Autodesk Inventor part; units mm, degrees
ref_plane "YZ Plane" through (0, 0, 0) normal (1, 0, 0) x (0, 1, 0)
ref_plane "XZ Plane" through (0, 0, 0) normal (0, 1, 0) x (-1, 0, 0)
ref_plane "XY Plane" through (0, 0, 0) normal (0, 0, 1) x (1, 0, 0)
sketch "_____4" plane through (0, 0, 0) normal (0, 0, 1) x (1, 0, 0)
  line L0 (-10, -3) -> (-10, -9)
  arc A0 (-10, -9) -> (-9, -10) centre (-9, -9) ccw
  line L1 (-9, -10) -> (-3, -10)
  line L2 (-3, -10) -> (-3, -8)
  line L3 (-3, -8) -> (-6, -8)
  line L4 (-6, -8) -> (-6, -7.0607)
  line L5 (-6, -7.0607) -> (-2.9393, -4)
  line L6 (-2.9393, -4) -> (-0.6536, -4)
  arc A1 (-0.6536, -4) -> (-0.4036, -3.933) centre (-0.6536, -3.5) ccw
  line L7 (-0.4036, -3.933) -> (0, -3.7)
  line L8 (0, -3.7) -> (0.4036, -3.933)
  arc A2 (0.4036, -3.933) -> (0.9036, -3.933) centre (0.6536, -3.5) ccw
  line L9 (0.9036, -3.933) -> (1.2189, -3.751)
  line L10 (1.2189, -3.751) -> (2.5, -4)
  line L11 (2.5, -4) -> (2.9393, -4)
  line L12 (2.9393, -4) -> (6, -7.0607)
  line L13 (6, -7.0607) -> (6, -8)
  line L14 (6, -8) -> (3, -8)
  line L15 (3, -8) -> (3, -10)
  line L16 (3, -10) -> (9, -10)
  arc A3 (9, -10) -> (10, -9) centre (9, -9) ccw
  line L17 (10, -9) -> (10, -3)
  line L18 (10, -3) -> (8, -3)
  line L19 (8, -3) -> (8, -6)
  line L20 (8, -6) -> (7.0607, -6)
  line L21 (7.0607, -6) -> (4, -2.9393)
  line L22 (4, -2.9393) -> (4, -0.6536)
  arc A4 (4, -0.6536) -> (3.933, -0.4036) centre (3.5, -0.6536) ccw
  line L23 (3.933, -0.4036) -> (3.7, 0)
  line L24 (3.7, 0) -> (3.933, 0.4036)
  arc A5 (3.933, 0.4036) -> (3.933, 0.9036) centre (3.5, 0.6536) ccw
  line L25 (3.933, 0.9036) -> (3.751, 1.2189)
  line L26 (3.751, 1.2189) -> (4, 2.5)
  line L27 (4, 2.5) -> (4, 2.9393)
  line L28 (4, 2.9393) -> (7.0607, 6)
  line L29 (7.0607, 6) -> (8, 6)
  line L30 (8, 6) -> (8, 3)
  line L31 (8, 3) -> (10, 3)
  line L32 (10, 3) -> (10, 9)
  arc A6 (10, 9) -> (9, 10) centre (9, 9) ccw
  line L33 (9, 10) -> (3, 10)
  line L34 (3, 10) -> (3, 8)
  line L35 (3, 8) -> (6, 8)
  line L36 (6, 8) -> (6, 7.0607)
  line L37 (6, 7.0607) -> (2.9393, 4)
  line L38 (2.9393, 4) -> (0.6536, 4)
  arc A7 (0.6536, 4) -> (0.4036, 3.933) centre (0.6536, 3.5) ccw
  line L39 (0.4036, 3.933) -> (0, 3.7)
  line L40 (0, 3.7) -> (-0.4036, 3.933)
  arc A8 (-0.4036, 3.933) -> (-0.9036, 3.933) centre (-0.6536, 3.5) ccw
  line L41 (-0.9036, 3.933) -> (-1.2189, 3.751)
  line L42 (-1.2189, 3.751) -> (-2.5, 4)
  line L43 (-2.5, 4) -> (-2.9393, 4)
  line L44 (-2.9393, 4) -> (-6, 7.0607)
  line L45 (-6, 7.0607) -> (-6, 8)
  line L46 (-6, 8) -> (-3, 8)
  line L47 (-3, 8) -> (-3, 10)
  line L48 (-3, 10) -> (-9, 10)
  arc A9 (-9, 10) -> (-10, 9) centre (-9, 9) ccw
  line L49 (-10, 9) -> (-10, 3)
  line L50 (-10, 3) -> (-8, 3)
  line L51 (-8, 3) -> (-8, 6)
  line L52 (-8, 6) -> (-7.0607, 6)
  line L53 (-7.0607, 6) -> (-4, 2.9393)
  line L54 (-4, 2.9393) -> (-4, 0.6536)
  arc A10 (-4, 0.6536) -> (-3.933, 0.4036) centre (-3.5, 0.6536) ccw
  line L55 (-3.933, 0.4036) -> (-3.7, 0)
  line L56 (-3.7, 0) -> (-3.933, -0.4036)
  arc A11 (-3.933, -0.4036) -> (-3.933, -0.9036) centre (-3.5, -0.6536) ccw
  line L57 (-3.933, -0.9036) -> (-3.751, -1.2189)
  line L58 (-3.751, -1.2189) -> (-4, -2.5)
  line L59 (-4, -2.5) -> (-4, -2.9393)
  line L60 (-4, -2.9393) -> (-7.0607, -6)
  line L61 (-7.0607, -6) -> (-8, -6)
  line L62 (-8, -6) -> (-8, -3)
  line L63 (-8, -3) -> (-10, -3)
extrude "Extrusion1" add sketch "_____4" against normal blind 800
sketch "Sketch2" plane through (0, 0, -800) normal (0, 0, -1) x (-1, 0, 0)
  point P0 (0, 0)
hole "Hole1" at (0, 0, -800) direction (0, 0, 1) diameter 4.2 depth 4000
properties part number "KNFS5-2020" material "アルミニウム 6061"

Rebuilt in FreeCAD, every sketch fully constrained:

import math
import FreeCAD as App
import Part
import Sketcher
Q = App.Units.Quantity

doc = App.newDocument("Part")
body = doc.addObject("PartDesign::Body", "Body")

# Sketch on XY plane
sketch1 = body.newObject("Sketcher::SketchObject", "Sketch")
sketch1.AttachmentSupport = (doc.getObject("XY_Plane"), [""])
sketch1.MapMode = "FlatFace"
sketch1.addGeometry([
    Part.LineSegment(App.Vector(-8, -3, 0), App.Vector(-10, -3, 0)),  # 0
    Part.LineSegment(App.Vector(-10, -3, 0), App.Vector(-10, -9, 0)),  # 1
    Part.ArcOfCircle(Part.Circle(App.Vector(-9, -9, 0), App.Vector(0, 0, 1), 1), math.radians(180), math.radians(270)),  # 2
    Part.LineSegment(App.Vector(-9, -10, 0), App.Vector(-3, -10, 0)),  # 3
    Part.LineSegment(App.Vector(-3, -10, 0), App.Vector(-3, -8, 0)),  # 4
    Part.LineSegment(App.Vector(-3, -8, 0), App.Vector(-6, -8, 0)),  # 5
    Part.LineSegment(App.Vector(-6, -8, 0), App.Vector(-6, -7.06, 0)),  # 6
    Part.LineSegment(App.Vector(-6, -7.06, 0), App.Vector(-2.94, -4, 0)),  # 7
    Part.LineSegment(App.Vector(-2.94, -4, 0), App.Vector(-0.65, -4, 0)),  # 8
    Part.ArcOfCircle(Part.Circle(App.Vector(-0.65, -3.5, 0), App.Vector(0, 0, 1), 0.5), math.radians(-90), math.radians(-60)),  # 9
    Part.LineSegment(App.Vector(-0.4, -3.93, 0), App.Vector(0, -3.7, 0)),  # 10
    Part.LineSegment(App.Vector(0, -3.7, 0), App.Vector(0.4, -3.93, 0)),  # 11
    Part.ArcOfCircle(Part.Circle(App.Vector(0.65, -3.5, 0), App.Vector(0, 0, 1), 0.5), math.radians(-120), math.radians(-60)),  # 12
    Part.LineSegment(App.Vector(0.9, -3.93, 0), App.Vector(1.22, -3.75, 0)),  # 13
    Part.LineSegment(App.Vector(1.22, -3.75, 0), App.Vector(2.5, -4, 0)),  # 14
    Part.LineSegment(App.Vector(2.5, -4, 0), App.Vector(2.94, -4, 0)),  # 15
    Part.LineSegment(App.Vector(2.94, -4, 0), App.Vector(6, -7.06, 0)),  # 16
    Part.LineSegment(App.Vector(6, -7.06, 0), App.Vector(6, -8, 0)),  # 17
    Part.LineSegment(App.Vector(6, -8, 0), App.Vector(3, -8, 0)),  # 18
    Part.LineSegment(App.Vector(3, -8, 0), App.Vector(3, -10, 0)),  # 19
    Part.LineSegment(App.Vector(3, -10, 0), App.Vector(9, -10, 0)),  # 20
    Part.ArcOfCircle(Part.Circle(App.Vector(9, -9, 0), App.Vector(0, 0, 1), 1), math.radians(-90), math.radians(0)),  # 21
    Part.LineSegment(App.Vector(10, -9, 0), App.Vector(10, -3, 0)),  # 22
    Part.LineSegment(App.Vector(10, -3, 0), App.Vector(8, -3, 0)),  # 23
    Part.LineSegment(App.Vector(8, -3, 0), App.Vector(8, -6, 0)),  # 24
    Part.LineSegment(App.Vector(8, -6, 0), App.Vector(7.06, -6, 0)),  # 25
    Part.LineSegment(App.Vector(7.06, -6, 0), App.Vector(4, -2.94, 0)),  # 26
    Part.LineSegment(App.Vector(4, -2.94, 0), App.Vector(4, -0.65, 0)),  # 27
    Part.ArcOfCircle(Part.Circle(App.Vector(3.5, -0.65, 0), App.Vector(0, 0, 1), 0.5), math.radians(0), math.radians(30)),  # 28
    Part.LineSegment(App.Vector(3.93, -0.4, 0), App.Vector(3.7, 0, 0)),  # 29
    Part.LineSegment(App.Vector(3.7, 0, 0), App.Vector(3.93, 0.4, 0)),  # 30
    Part.ArcOfCircle(Part.Circle(App.Vector(3.5, 0.65, 0), App.Vector(0, 0, 1), 0.5), math.radians(-30), math.radians(30)),  # 31
    Part.LineSegment(App.Vector(3.93, 0.9, 0), App.Vector(3.75, 1.22, 0)),  # 32
    Part.LineSegment(App.Vector(3.75, 1.22, 0), App.Vector(4, 2.5, 0)),  # 33
    Part.LineSegment(App.Vector(4, 2.5, 0), App.Vector(4, 2.94, 0)),  # 34
    Part.LineSegment(App.Vector(4, 2.94, 0), App.Vector(7.06, 6, 0)),  # 35
    Part.LineSegment(App.Vector(7.06, 6, 0), App.Vector(8, 6, 0)),  # 36
    Part.LineSegment(App.Vector(8, 6, 0), App.Vector(8, 3, 0)),  # 37
    Part.LineSegment(App.Vector(8, 3, 0), App.Vector(10, 3, 0)),  # 38
    Part.LineSegment(App.Vector(10, 3, 0), App.Vector(10, 9, 0)),  # 39
    Part.ArcOfCircle(Part.Circle(App.Vector(9, 9, 0), App.Vector(0, 0, 1), 1), math.radians(0), math.radians(90)),  # 40
    Part.LineSegment(App.Vector(9, 10, 0), App.Vector(3, 10, 0)),  # 41
    Part.LineSegment(App.Vector(3, 10, 0), App.Vector(3, 8, 0)),  # 42
    Part.LineSegment(App.Vector(3, 8, 0), App.Vector(6, 8, 0)),  # 43
    Part.LineSegment(App.Vector(6, 8, 0), App.Vector(6, 7.06, 0)),  # 44
    Part.LineSegment(App.Vector(6, 7.06, 0), App.Vector(2.94, 4, 0)),  # 45
    Part.LineSegment(App.Vector(2.94, 4, 0), App.Vector(0.65, 4, 0)),  # 46
    Part.ArcOfCircle(Part.Circle(App.Vector(0.65, 3.5, 0), App.Vector(0, 0, 1), 0.5), math.radians(90), math.radians(120)),  # 47
    Part.LineSegment(App.Vector(0.4, 3.93, 0), App.Vector(0, 3.7, 0)),  # 48
    Part.LineSegment(App.Vector(0, 3.7, 0), App.Vector(-0.4, 3.93, 0)),  # 49
    Part.ArcOfCircle(Part.Circle(App.Vector(-0.65, 3.5, 0), App.Vector(0, 0, 1), 0.5), math.radians(60), math.radians(120)),  # 50
    Part.LineSegment(App.Vector(-0.9, 3.93, 0), App.Vector(-1.22, 3.75, 0)),  # 51
    Part.LineSegment(App.Vector(-1.22, 3.75, 0), App.Vector(-2.5, 4, 0)),  # 52
    Part.LineSegment(App.Vector(-2.5, 4, 0), App.Vector(-2.94, 4, 0)),  # 53
    Part.LineSegment(App.Vector(-2.94, 4, 0), App.Vector(-6, 7.06, 0)),  # 54
    Part.LineSegment(App.Vector(-6, 7.06, 0), App.Vector(-6, 8, 0)),  # 55
    Part.LineSegment(App.Vector(-6, 8, 0), App.Vector(-3, 8, 0)),  # 56
    Part.LineSegment(App.Vector(-3, 8, 0), App.Vector(-3, 10, 0)),  # 57
    Part.LineSegment(App.Vector(-3, 10, 0), App.Vector(-9, 10, 0)),  # 58
    Part.ArcOfCircle(Part.Circle(App.Vector(-9, 9, 0), App.Vector(0, 0, 1), 1), math.radians(90), math.radians(180)),  # 59
    Part.LineSegment(App.Vector(-10, 9, 0), App.Vector(-10, 3, 0)),  # 60
    Part.LineSegment(App.Vector(-10, 3, 0), App.Vector(-8, 3, 0)),  # 61
    Part.LineSegment(App.Vector(-8, 3, 0), App.Vector(-8, 6, 0)),  # 62
    Part.LineSegment(App.Vector(-8, 6, 0), App.Vector(-7.06, 6, 0)),  # 63
    Part.LineSegment(App.Vector(-7.06, 6, 0), App.Vector(-4, 2.94, 0)),  # 64
    Part.LineSegment(App.Vector(-4, 2.94, 0), App.Vector(-4, 0.65, 0)),  # 65
    Part.ArcOfCircle(Part.Circle(App.Vector(-3.5, 0.65, 0), App.Vector(0, 0, 1), 0.5), math.radians(180), math.radians(210)),  # 66
    Part.LineSegment(App.Vector(-3.93, 0.4, 0), App.Vector(-3.7, 0, 0)),  # 67
    Part.LineSegment(App.Vector(-3.7, 0, 0), App.Vector(-3.93, -0.4, 0)),  # 68
    Part.ArcOfCircle(Part.Circle(App.Vector(-3.5, -0.65, 0), App.Vector(0, 0, 1), 0.5), math.radians(150), math.radians(210)),  # 69
    Part.LineSegment(App.Vector(-3.93, -0.9, 0), App.Vector(-3.75, -1.22, 0)),  # 70
    Part.LineSegment(App.Vector(-3.75, -1.22, 0), App.Vector(-4, -2.5, 0)),  # 71
    Part.LineSegment(App.Vector(-4, -2.5, 0), App.Vector(-4, -2.94, 0)),  # 72
    Part.LineSegment(App.Vector(-4, -2.94, 0), App.Vector(-7.06, -6, 0)),  # 73
    Part.LineSegment(App.Vector(-7.06, -6, 0), App.Vector(-8, -6, 0)),  # 74
    Part.LineSegment(App.Vector(-8, -6, 0), App.Vector(-8, -3, 0)),  # 75
], False)
sketch1.addConstraint([
    Sketcher.Constraint("Coincident", 0, 2, 1, 1),
    Sketcher.Constraint("Tangent", 1, 2, 2, 1),
    Sketcher.Constraint("Tangent", 2, 2, 3, 1),
    Sketcher.Constraint("Coincident", 3, 2, 4, 1),
    Sketcher.Constraint("Coincident", 4, 2, 5, 1),
    Sketcher.Constraint("Coincident", 5, 2, 6, 1),
    Sketcher.Constraint("Coincident", 6, 2, 7, 1),
    Sketcher.Constraint("Coincident", 7, 2, 8, 1),
    Sketcher.Constraint("Tangent", 8, 2, 9, 1),
    Sketcher.Constraint("Tangent", 9, 2, 10, 1),
    Sketcher.Constraint("Coincident", 10, 2, 11, 1),
    Sketcher.Constraint("Tangent", 11, 2, 12, 1),
    Sketcher.Constraint("Tangent", 12, 2, 13, 1),
    Sketcher.Constraint("Coincident", 13, 2, 14, 1),
    Sketcher.Constraint("Coincident", 14, 2, 15, 1),
    Sketcher.Constraint("Coincident", 15, 2, 16, 1),
    Sketcher.Constraint("Coincident", 16, 2, 17, 1),
    Sketcher.Constraint("Coincident", 17, 2, 18, 1),
    Sketcher.Constraint("Coincident", 18, 2, 19, 1),
    Sketcher.Constraint("Coincident", 19, 2, 20, 1),
    Sketcher.Constraint("Tangent", 20, 2, 21, 1),
    Sketcher.Constraint("Tangent", 21, 2, 22, 1),
    Sketcher.Constraint("Coincident", 22, 2, 23, 1),
    Sketcher.Constraint("Coincident", 23, 2, 24, 1),
    Sketcher.Constraint("Coincident", 24, 2, 25, 1),
    Sketcher.Constraint("Coincident", 25, 2, 26, 1),
    Sketcher.Constraint("Coincident", 26, 2, 27, 1),
    Sketcher.Constraint("Tangent", 27, 2, 28, 1),
    Sketcher.Constraint("Tangent", 28, 2, 29, 1),
    Sketcher.Constraint("Coincident", 29, 2, 30, 1),
    Sketcher.Constraint("Tangent", 30, 2, 31, 1),
    Sketcher.Constraint("Tangent", 31, 2, 32, 1),
    Sketcher.Constraint("Coincident", 32, 2, 33, 1),
    Sketcher.Constraint("Coincident", 33, 2, 34, 1),
    Sketcher.Constraint("Coincident", 34, 2, 35, 1),
    Sketcher.Constraint("Coincident", 35, 2, 36, 1),
    Sketcher.Constraint("Coincident", 36, 2, 37, 1),
    Sketcher.Constraint("Coincident", 37, 2, 38, 1),
    Sketcher.Constraint("Coincident", 38, 2, 39, 1),
    Sketcher.Constraint("Tangent", 39, 2, 40, 1),
    Sketcher.Constraint("Tangent", 40, 2, 41, 1),
    Sketcher.Constraint("Coincident", 41, 2, 42, 1),
    Sketcher.Constraint("Coincident", 42, 2, 43, 1),
    Sketcher.Constraint("Coincident", 43, 2, 44, 1),
    Sketcher.Constraint("Coincident", 44, 2, 45, 1),
    Sketcher.Constraint("Coincident", 45, 2, 46, 1),
    Sketcher.Constraint("Tangent", 46, 2, 47, 1),
    Sketcher.Constraint("Tangent", 47, 2, 48, 1),
    Sketcher.Constraint("Coincident", 48, 2, 49, 1),
    Sketcher.Constraint("Tangent", 49, 2, 50, 1),
    Sketcher.Constraint("Tangent", 50, 2, 51, 1),
    Sketcher.Constraint("Coincident", 51, 2, 52, 1),
    Sketcher.Constraint("Coincident", 52, 2, 53, 1),
    Sketcher.Constraint("Coincident", 53, 2, 54, 1),
    Sketcher.Constraint("Coincident", 54, 2, 55, 1),
    Sketcher.Constraint("Coincident", 55, 2, 56, 1),
    Sketcher.Constraint("Coincident", 56, 2, 57, 1),
    Sketcher.Constraint("Coincident", 57, 2, 58, 1),
    Sketcher.Constraint("Tangent", 58, 2, 59, 1),
    Sketcher.Constraint("Tangent", 59, 2, 60, 1),
    Sketcher.Constraint("Coincident", 60, 2, 61, 1),
    Sketcher.Constraint("Coincident", 61, 2, 62, 1),
    Sketcher.Constraint("Coincident", 62, 2, 63, 1),
    Sketcher.Constraint("Coincident", 63, 2, 64, 1),
    Sketcher.Constraint("Coincident", 64, 2, 65, 1),
    Sketcher.Constraint("Tangent", 65, 2, 66, 1),
    Sketcher.Constraint("Tangent", 66, 2, 67, 1),
    Sketcher.Constraint("Coincident", 67, 2, 68, 1),
    Sketcher.Constraint("Tangent", 68, 2, 69, 1),
    Sketcher.Constraint("Tangent", 69, 2, 70, 1),
    Sketcher.Constraint("Coincident", 70, 2, 71, 1),
    Sketcher.Constraint("Coincident", 71, 2, 72, 1),
    Sketcher.Constraint("Coincident", 72, 2, 73, 1),
    Sketcher.Constraint("Coincident", 73, 2, 74, 1),
    Sketcher.Constraint("Coincident", 74, 2, 75, 1),
    Sketcher.Constraint("Coincident", 75, 2, 0, 1),
    Sketcher.Constraint("Horizontal", 0),
    Sketcher.Constraint("Vertical", 1),
    Sketcher.Constraint("Horizontal", 3),
    Sketcher.Constraint("Vertical", 4),
    Sketcher.Constraint("Horizontal", 5),
    Sketcher.Constraint("Vertical", 6),
    Sketcher.Constraint("Horizontal", 8),
    Sketcher.Constraint("Horizontal", 15),
    Sketcher.Constraint("Vertical", 17),
    Sketcher.Constraint("Horizontal", 18),
    Sketcher.Constraint("Vertical", 19),
    Sketcher.Constraint("Horizontal", 20),
    Sketcher.Constraint("Vertical", 22),
    Sketcher.Constraint("Horizontal", 23),
    Sketcher.Constraint("Vertical", 24),
    Sketcher.Constraint("Horizontal", 25),
    Sketcher.Constraint("Vertical", 27),
    Sketcher.Constraint("Vertical", 34),
    Sketcher.Constraint("Horizontal", 36),
    Sketcher.Constraint("Vertical", 37),
    Sketcher.Constraint("Horizontal", 38),
    Sketcher.Constraint("Vertical", 39),
    Sketcher.Constraint("Horizontal", 41),
    Sketcher.Constraint("Vertical", 42),
    Sketcher.Constraint("Horizontal", 43),
    Sketcher.Constraint("Vertical", 44),
    Sketcher.Constraint("Horizontal", 46),
    Sketcher.Constraint("Horizontal", 53),
    Sketcher.Constraint("Vertical", 55),
    Sketcher.Constraint("Horizontal", 56),
    Sketcher.Constraint("Vertical", 57),
    Sketcher.Constraint("Horizontal", 58),
    Sketcher.Constraint("Vertical", 60),
    Sketcher.Constraint("Horizontal", 61),
    Sketcher.Constraint("Vertical", 62),
    Sketcher.Constraint("Horizontal", 63),
    Sketcher.Constraint("Vertical", 65),
    Sketcher.Constraint("Vertical", 72),
    Sketcher.Constraint("Horizontal", 74),
    Sketcher.Constraint("Vertical", 75),
    Sketcher.Constraint("Equal", 9, 12),
    Sketcher.Constraint("Equal", 2, 21),
    Sketcher.Constraint("Equal", 12, 28),
    Sketcher.Constraint("Equal", 28, 31),
    Sketcher.Constraint("Equal", 21, 40),
    Sketcher.Constraint("Equal", 31, 47),
    Sketcher.Constraint("Equal", 47, 50),
    Sketcher.Constraint("Equal", 40, 59),
    Sketcher.Constraint("Equal", 50, 66),
    Sketcher.Constraint("Equal", 66, 69),
    Sketcher.Constraint("Symmetric", 2, 3, 40, 3, -1, 1),
    Sketcher.Constraint("Symmetric", 9, 3, 47, 3, -1, 1),
    Sketcher.Constraint("Symmetric", 12, 3, 50, 3, -1, 1),
    Sketcher.Constraint("Symmetric", 21, 3, 59, 3, -1, 1),
    Sketcher.Constraint("Symmetric", 28, 3, 66, 3, -1, 1),
    Sketcher.Constraint("Symmetric", 31, 3, 69, 3, -1, 1),
    Sketcher.Constraint("Symmetric", 4, 2, 42, 2, -1, 1),
    Sketcher.Constraint("Symmetric", 6, 2, 44, 2, -1, 1),
    Sketcher.Constraint("Symmetric", 10, 2, 48, 2, -1, 1),
    Sketcher.Constraint("Symmetric", 13, 2, 51, 2, -1, 1),
    Sketcher.Constraint("Symmetric", 14, 2, 52, 2, -1, 1),
    Sketcher.Constraint("Symmetric", 16, 2, 54, 2, -1, 1),
    Sketcher.Constraint("Symmetric", 18, 2, 56, 2, -1, 1),
    Sketcher.Constraint("Symmetric", 23, 2, 61, 2, -1, 1),
    Sketcher.Constraint("Symmetric", 25, 2, 63, 2, -1, 1),
    Sketcher.Constraint("Symmetric", 29, 2, 67, 2, -1, 1),
    Sketcher.Constraint("Symmetric", 32, 2, 70, 2, -1, 1),
    Sketcher.Constraint("Symmetric", 33, 2, 71, 2, -1, 1),
    Sketcher.Constraint("Symmetric", 35, 2, 73, 2, -1, 1),
    Sketcher.Constraint("Symmetric", 37, 2, 75, 2, -1, 1),
    Sketcher.Constraint("Symmetric", 9, 3, 12, 3, -2),
    Sketcher.Constraint("Symmetric", 2, 3, 21, 3, -2),
    Sketcher.Constraint("Symmetric", 31, 3, 66, 3, -2),
    Sketcher.Constraint("Symmetric", 7, 2, 15, 2, -2),
    Sketcher.Constraint("Symmetric", 6, 2, 16, 2, -2),
    Sketcher.Constraint("Symmetric", 4, 2, 18, 2, -2),
    Sketcher.Constraint("Symmetric", 37, 2, 61, 2, -2),
    Sketcher.Constraint("Symmetric", 35, 2, 63, 2, -2),
    Sketcher.Constraint("Symmetric", 34, 2, 64, 2, -2),
    Sketcher.Constraint("PointOnObject", 10, 2, -2),
    Sketcher.Constraint("PointOnObject", 29, 2, -1),
    Sketcher.Constraint("Parallel", 10, 13),
    Sketcher.Constraint("Perpendicular", 7, 16),
    Sketcher.Constraint("Parallel", 16, 26),
    Sketcher.Constraint("Perpendicular", 13, 29),
    Sketcher.Constraint("Parallel", 29, 32),
    Sketcher.Constraint("Perpendicular", 14, 33),
    Sketcher.Constraint("Perpendicular", 26, 35),
    Sketcher.Constraint("Parallel", 35, 45),
    Sketcher.Constraint("Perpendicular", 45, 54),
    Sketcher.Constraint("Perpendicular", 64, 73),
    Sketcher.Constraint("Equal", 58, 1),
    Sketcher.Constraint("Equal", 61, 4),
    Sketcher.Constraint("Equal", 74, 6),
    Sketcher.Constraint("Equal", 56, 24),
    Sketcher.Constraint("Equal", 46, 27),
    Sketcher.Constraint("Equal", 53, 34),
    Sketcher.Constraint("Equal", 16, 26),
    Sketcher.Constraint("Equal", 11, 29),
    Sketcher.Constraint("Radius", 2, Q("1 mm")),
    Sketcher.Constraint("Radius", 9, Q("0.5 mm")),
    Sketcher.Constraint("DistanceX", 0, 2, 0, 1, Q("2 mm")),
    Sketcher.Constraint("DistanceX", 3, 1, 3, 2, Q("6 mm")),
    Sketcher.Constraint("DistanceX", 5, 2, 5, 1, Q("3 mm")),
    Sketcher.Constraint("Angle", 14, Q("-10.999 deg")),
    Sketcher.Constraint("DistanceX", 2, 3, -1, 1, Q("9 mm")),
    Sketcher.Constraint("DistanceY", 7, 2, -1, 1, Q("4 mm")),
    Sketcher.Constraint("DistanceY", 10, 2, -1, 1, Q("3.7 mm")),
    Sketcher.Constraint("DistanceX", -1, 1, 14, 2, Q("2.5 mm")),
    Sketcher.Constraint("Distance", 10, Q("0.466 mm")),
    Sketcher.Constraint("DistanceX", 8, 1, 8, 2, Q("2.2857 mm")),
])
pad1 = body.newObject("PartDesign::Pad", "Pad")
pad1.Profile = sketch1
pad1.Length = 800
pad1.Reversed = True

# Sketch on XY plane
sketch2 = body.newObject("Sketcher::SketchObject", "Sketch001")
sketch2.AttachmentSupport = (doc.getObject("XY_Plane"), [""])
sketch2.MapMode = "FlatFace"
sketch2.AttachmentOffset = App.Placement(App.Vector(0, 0, -800), App.Rotation())
sketch2.addGeometry(Part.Circle(App.Vector(0, 0, 0), App.Vector(0, 0, 1), 2.1), False)
sketch2.addConstraint([
    Sketcher.Constraint("Coincident", 0, 3, -1, 1),
    Sketcher.Constraint("Diameter", 0, Q("4.2 mm")),
])
doc.recompute()
hole = body.newObject("PartDesign::Hole", "Hole")
hole.Profile = sketch2
hole.ThreadType = "None"
hole.Diameter = 4.2
hole.DepthType = "Dimension"
hole.Depth = 4000
hole.DrillPoint = "Flat"
hole.Reversed = True

doc.recompute()
